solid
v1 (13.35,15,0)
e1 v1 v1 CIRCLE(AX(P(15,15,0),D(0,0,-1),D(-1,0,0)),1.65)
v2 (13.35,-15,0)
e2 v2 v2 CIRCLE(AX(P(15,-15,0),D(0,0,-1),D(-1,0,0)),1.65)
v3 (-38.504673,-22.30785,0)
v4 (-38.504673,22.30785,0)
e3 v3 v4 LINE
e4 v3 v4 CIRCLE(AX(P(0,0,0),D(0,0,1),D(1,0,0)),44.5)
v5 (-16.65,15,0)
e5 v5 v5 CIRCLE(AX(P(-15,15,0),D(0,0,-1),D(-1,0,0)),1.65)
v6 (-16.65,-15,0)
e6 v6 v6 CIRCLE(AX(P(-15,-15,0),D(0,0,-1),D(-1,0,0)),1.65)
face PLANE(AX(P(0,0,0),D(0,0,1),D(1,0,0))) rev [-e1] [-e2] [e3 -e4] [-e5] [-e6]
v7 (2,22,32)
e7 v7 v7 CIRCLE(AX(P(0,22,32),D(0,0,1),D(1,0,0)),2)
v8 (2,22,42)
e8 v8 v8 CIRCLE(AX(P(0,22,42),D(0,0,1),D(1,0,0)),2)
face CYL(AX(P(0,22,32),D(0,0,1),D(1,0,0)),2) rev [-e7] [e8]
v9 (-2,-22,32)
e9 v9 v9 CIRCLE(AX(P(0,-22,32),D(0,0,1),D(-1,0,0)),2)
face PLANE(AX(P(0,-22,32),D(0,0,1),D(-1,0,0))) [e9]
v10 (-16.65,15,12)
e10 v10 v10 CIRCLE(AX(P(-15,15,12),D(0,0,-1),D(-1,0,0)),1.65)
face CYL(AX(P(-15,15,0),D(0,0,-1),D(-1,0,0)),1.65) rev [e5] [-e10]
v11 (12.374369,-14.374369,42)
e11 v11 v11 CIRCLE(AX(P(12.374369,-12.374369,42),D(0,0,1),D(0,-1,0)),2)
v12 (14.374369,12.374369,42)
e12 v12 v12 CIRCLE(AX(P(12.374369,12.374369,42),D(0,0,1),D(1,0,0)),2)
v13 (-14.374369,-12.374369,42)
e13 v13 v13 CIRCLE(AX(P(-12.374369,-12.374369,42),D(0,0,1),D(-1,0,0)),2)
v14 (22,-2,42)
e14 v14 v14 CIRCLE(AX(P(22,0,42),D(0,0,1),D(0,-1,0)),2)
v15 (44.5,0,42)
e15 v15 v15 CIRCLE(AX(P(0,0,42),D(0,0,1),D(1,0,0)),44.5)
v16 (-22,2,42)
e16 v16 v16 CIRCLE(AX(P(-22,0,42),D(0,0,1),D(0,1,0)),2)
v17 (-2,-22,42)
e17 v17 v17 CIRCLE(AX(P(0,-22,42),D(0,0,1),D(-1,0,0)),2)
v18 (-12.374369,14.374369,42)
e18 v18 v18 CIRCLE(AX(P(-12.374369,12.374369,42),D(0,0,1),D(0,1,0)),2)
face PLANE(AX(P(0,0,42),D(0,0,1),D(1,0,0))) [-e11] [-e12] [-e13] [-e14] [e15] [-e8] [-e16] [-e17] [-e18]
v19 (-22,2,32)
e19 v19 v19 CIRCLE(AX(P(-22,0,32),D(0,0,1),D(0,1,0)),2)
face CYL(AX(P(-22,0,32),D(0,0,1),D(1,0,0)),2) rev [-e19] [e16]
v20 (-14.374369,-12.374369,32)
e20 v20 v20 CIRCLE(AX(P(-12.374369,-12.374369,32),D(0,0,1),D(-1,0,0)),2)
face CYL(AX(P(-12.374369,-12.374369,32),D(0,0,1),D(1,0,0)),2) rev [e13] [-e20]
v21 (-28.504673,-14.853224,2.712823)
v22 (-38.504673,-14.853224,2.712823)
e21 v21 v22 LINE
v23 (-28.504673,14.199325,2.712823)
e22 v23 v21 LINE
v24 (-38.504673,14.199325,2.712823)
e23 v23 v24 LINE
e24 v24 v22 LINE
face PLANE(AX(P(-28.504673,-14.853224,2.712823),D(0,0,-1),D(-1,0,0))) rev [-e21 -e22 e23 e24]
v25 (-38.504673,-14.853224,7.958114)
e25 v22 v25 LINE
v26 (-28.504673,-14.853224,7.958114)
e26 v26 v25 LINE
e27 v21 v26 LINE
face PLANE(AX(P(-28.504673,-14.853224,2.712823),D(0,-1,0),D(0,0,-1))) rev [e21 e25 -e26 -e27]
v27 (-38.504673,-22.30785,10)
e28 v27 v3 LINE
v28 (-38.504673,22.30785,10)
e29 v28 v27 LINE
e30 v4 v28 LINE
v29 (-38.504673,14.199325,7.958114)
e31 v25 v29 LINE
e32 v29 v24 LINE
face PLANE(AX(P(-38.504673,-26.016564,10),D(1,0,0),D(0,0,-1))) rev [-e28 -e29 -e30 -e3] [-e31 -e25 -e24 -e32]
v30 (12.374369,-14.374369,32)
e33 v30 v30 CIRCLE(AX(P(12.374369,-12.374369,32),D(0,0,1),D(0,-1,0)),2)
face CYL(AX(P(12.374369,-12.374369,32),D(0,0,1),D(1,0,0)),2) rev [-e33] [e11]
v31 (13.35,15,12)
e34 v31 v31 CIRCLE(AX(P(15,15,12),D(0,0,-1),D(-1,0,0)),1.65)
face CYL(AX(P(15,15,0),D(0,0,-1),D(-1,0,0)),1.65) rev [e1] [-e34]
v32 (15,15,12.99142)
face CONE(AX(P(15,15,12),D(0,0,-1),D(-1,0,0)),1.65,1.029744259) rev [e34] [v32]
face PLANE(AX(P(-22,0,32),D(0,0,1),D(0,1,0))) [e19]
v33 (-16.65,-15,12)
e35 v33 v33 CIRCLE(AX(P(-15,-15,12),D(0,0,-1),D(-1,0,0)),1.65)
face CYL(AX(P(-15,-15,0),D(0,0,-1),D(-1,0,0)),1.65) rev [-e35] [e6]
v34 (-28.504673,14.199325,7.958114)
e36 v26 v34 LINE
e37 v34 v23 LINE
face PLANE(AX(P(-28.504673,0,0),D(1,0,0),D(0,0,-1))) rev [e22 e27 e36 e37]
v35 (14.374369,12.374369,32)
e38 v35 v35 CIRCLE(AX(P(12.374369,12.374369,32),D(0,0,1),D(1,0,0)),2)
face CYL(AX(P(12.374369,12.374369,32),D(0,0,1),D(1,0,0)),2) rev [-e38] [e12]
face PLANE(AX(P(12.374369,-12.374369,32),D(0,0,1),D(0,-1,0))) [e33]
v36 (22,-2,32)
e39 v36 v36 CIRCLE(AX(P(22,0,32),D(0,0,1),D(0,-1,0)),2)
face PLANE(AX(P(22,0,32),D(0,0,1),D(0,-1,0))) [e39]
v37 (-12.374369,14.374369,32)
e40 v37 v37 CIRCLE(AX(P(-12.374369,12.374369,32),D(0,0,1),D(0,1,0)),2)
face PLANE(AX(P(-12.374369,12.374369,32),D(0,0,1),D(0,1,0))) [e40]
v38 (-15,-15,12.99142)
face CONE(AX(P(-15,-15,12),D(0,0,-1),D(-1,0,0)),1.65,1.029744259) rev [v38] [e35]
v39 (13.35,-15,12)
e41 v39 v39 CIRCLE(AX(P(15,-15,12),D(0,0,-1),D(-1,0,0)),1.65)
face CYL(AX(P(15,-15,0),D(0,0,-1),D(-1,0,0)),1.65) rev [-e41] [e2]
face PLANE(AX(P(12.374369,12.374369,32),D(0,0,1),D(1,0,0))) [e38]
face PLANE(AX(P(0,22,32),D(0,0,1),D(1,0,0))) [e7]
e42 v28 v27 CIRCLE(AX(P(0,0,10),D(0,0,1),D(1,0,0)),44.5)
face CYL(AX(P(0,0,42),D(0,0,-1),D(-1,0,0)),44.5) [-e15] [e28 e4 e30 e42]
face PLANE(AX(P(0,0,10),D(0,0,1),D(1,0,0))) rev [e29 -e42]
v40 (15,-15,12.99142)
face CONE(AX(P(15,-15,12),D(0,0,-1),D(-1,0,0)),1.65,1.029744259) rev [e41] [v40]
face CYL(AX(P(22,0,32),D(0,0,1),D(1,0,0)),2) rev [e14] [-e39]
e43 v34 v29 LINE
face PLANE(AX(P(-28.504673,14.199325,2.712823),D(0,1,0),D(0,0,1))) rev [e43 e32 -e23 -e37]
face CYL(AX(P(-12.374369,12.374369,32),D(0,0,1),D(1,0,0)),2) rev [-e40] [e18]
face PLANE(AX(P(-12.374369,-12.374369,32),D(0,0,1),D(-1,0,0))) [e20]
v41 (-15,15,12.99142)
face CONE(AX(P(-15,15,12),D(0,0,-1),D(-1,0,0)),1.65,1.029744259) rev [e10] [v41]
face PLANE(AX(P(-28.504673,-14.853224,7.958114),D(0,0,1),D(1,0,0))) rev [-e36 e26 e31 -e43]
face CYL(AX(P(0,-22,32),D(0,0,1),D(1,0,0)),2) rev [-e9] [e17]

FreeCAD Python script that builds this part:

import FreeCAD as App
import Part
import Sketcher
from FreeCAD import Vector
Q = App.Units.Quantity


def add_polygon(sketch, points):
    """Adds a closed chain of lines whose ends are joined by coincident constraints."""
    first, n = sketch.GeometryCount, len(points)
    for a, b in zip(points, points[1:] + points[:1]):
        sketch.addGeometry(Part.LineSegment(App.Vector(*a, 0), App.Vector(*b, 0)), False)
    for i in range(n):
        sketch.addConstraint(Sketcher.Constraint("Coincident", first + i, 2, first + (i + 1) % n, 1))

doc = App.newDocument("Part")
params = doc.addObject("Spreadsheet::Sheet", "Params")
for row, (alias, value) in enumerate([
    ("sketch1_diameter", "89 mm"),
    ("pad1_length", "42 mm"),
    ("sketch2_diameter", "3.3 mm"),
    ("hole_diameter", "3.3 mm"),
    ("hole_depth", "12 mm"),
    ("sketch3_diameter", "4 mm"),
    ("pocket1_length", "10 mm"),
    ("pocket2_length", "10 mm"),
    ("pocket3_length", "10 mm"),
], start=1):
    params.set(f"A{row}", alias)
    params.set(f"B{row}", "=" + value)
    params.setAlias(f"B{row}", alias)

body = doc.addObject("PartDesign::Body", "Body")

# Sketch on XY plane
sketch1 = doc.addObject("Sketcher::SketchObject", "Sketch")
body.addObject(sketch1)
sketch1.AttachmentSupport = (doc.XY_Plane, [""])
sketch1.MapMode = "FlatFace"
sketch1.addGeometry(Part.Circle(Vector(0, 0, 0), Vector(0, 0, 1), 44), False)
sketch1.addConstraint([
    Sketcher.Constraint("Coincident", 0, 3, -1, 1),
    Sketcher.Constraint("Diameter", 0, Q("89 mm")),
])
sketch1.setExpression("Constraints[1]", "Params.sketch1_diameter")
pad1 = doc.addObject("PartDesign::Pad", "Pad")
body.addObject(pad1)
pad1.Profile = sketch1
pad1.setExpression("Length", "Params.pad1_length")

# Sketch on XY plane
sketch2 = doc.addObject("Sketcher::SketchObject", "Sketch001")
body.addObject(sketch2)
sketch2.AttachmentSupport = (doc.XY_Plane, [""])
sketch2.MapMode = "FlatFace"
sketch2.addGeometry([
    Part.Circle(Vector(15, 15, 0), Vector(0, 0, 1), 1.6),
    Part.Circle(Vector(-15, 15, 0), Vector(0, 0, 1), 1.6),
    Part.Circle(Vector(-15, -15, 0), Vector(0, 0, 1), 1.6),
    Part.Circle(Vector(15, -15, 0), Vector(0, 0, 1), 1.6),
], False)
sketch2.addConstraint([
    Sketcher.Constraint("Equal", 0, 1),
    Sketcher.Constraint("Equal", 1, 2),
    Sketcher.Constraint("Equal", 2, 3),
    Sketcher.Constraint("Symmetric", 0, 3, 2, 3, -1, 1),
    Sketcher.Constraint("Symmetric", 1, 3, 3, 3, -1, 1),
    Sketcher.Constraint("Symmetric", 0, 3, 1, 3, -2),
    Sketcher.Constraint("Diameter", 0, Q("3.3 mm")),
    Sketcher.Constraint("DistanceX", -1, 1, 0, 3, Q("15 mm")),
    Sketcher.Constraint("DistanceY", -1, 1, 0, 3, Q("15 mm")),
])
sketch2.setExpression("Constraints[6]", "Params.sketch2_diameter")
doc.recompute()
hole = doc.addObject("PartDesign::Hole", "Hole")
body.addObject(hole)
hole.Profile = sketch2
hole.ThreadType = "None"
hole.setExpression("Diameter", "Params.hole_diameter")
hole.DepthType = "Dimension"
hole.setExpression("Depth", "Params.hole_depth")
hole.DrillPoint = "Angled"
hole.DrillPointAngle = 118
hole.Reversed = True

# Sketch on XY plane
sketch3 = doc.addObject("Sketcher::SketchObject", "Sketch002")
body.addObject(sketch3)
sketch3.AttachmentSupport = (doc.XY_Plane, [""])
sketch3.MapMode = "FlatFace"
sketch3.AttachmentOffset = App.Placement(Vector(0, 0, 42), App.Rotation())
sketch3.addGeometry([
    Part.Circle(Vector(0, 22, 0), Vector(0, 0, 1), 2),
    Part.Circle(Vector(12.4, 12.4, 0), Vector(0, 0, 1), 2),
], False)
sketch3.addConstraint([
    Sketcher.Constraint("Equal", 0, 1),
    Sketcher.Constraint("PointOnObject", 0, 3, -2),
    Sketcher.Constraint("Diameter", 0, Q("4 mm")),
    Sketcher.Constraint("DistanceY", -1, 1, 0, 3, Q("22 mm")),
    Sketcher.Constraint("DistanceX", -1, 1, 1, 3, Q("12.374369 mm")),
    Sketcher.Constraint("DistanceY", -1, 1, 1, 3, Q("12.374369 mm")),
])
sketch3.setExpression("Constraints[2]", "Params.sketch3_diameter")
pocket1 = doc.addObject("PartDesign::Pocket", "Pocket")
body.addObject(pocket1)
pocket1.Profile = sketch3
pocket1.setExpression("Length", "Params.pocket1_length")
doc.recompute()

polarpattern = doc.addObject("PartDesign::PolarPattern", "PolarPattern")
body.addObject(polarpattern)
polarpattern.Originals = [pocket1]
polarpattern.Axis = (doc.Z_Axis, [""])
polarpattern.Angle = 360
polarpattern.Occurrences = 4
body.Tip = polarpattern

# Sketch on XY plane
sketch4 = doc.addObject("Sketcher::SketchObject", "Sketch003")
body.addObject(sketch4)
sketch4.AttachmentSupport = (doc.XY_Plane, [""])
sketch4.MapMode = "FlatFace"
add_polygon(sketch4, [(-39, 23), (-39, -26), (-58, -26), (-58, 23)])  # lines 0-3
sketch4.addConstraint([
    Sketcher.Constraint("Vertical", 0),
    Sketcher.Constraint("Horizontal", 1),
    Sketcher.Constraint("Vertical", 2),
    Sketcher.Constraint("Horizontal", 3),
    Sketcher.Constraint("DistanceY", 0, 2, 0, 1, Q("48.54732 mm")),
    Sketcher.Constraint("DistanceX", 1, 2, 1, 1, Q("19.478253 mm")),
    Sketcher.Constraint("DistanceX", 0, 2, -1, 1, Q("38.504673 mm")),
    Sketcher.Constraint("DistanceY", 0, 2, -1, 1, Q("26.016564 mm")),
])
pocket2 = doc.addObject("PartDesign::Pocket", "Pocket001")
body.addObject(pocket2)
pocket2.Profile = sketch4
pocket2.setExpression("Length", "Params.pocket2_length")
pocket2.Reversed = True

# Sketch on YZ plane
sketch5 = doc.addObject("Sketcher::SketchObject", "Sketch004")
body.addObject(sketch5)
sketch5.AttachmentSupport = (doc.YZ_Plane, [""])
sketch5.MapMode = "FlatFace"
sketch5.AttachmentOffset = App.Placement(Vector(0, 0, -38.504673), App.Rotation())
add_polygon(sketch5, [(14, 3), (-15, 3), (-15, 8), (14, 8)])  # lines 0-3
sketch5.addConstraint([
    Sketcher.Constraint("Horizontal", 0),
    Sketcher.Constraint("Vertical", 1),
    Sketcher.Constraint("Horizontal", 2),
    Sketcher.Constraint("Vertical", 3),
    Sketcher.Constraint("DistanceX", 0, 2, 0, 1, Q("29.052549 mm")),
    Sketcher.Constraint("DistanceY", 1, 1, 1, 2, Q("5.245291 mm")),
    Sketcher.Constraint("DistanceX", 0, 2, -1, 1, Q("14.853224 mm")),
    Sketcher.Constraint("DistanceY", -1, 1, 0, 2, Q("2.712823 mm")),
])
pocket3 = doc.addObject("PartDesign::Pocket", "Pocket002")
body.addObject(pocket3)
pocket3.Profile = sketch5
pocket3.setExpression("Length", "Params.pocket3_length")
pocket3.Reversed = True

doc.recompute()
